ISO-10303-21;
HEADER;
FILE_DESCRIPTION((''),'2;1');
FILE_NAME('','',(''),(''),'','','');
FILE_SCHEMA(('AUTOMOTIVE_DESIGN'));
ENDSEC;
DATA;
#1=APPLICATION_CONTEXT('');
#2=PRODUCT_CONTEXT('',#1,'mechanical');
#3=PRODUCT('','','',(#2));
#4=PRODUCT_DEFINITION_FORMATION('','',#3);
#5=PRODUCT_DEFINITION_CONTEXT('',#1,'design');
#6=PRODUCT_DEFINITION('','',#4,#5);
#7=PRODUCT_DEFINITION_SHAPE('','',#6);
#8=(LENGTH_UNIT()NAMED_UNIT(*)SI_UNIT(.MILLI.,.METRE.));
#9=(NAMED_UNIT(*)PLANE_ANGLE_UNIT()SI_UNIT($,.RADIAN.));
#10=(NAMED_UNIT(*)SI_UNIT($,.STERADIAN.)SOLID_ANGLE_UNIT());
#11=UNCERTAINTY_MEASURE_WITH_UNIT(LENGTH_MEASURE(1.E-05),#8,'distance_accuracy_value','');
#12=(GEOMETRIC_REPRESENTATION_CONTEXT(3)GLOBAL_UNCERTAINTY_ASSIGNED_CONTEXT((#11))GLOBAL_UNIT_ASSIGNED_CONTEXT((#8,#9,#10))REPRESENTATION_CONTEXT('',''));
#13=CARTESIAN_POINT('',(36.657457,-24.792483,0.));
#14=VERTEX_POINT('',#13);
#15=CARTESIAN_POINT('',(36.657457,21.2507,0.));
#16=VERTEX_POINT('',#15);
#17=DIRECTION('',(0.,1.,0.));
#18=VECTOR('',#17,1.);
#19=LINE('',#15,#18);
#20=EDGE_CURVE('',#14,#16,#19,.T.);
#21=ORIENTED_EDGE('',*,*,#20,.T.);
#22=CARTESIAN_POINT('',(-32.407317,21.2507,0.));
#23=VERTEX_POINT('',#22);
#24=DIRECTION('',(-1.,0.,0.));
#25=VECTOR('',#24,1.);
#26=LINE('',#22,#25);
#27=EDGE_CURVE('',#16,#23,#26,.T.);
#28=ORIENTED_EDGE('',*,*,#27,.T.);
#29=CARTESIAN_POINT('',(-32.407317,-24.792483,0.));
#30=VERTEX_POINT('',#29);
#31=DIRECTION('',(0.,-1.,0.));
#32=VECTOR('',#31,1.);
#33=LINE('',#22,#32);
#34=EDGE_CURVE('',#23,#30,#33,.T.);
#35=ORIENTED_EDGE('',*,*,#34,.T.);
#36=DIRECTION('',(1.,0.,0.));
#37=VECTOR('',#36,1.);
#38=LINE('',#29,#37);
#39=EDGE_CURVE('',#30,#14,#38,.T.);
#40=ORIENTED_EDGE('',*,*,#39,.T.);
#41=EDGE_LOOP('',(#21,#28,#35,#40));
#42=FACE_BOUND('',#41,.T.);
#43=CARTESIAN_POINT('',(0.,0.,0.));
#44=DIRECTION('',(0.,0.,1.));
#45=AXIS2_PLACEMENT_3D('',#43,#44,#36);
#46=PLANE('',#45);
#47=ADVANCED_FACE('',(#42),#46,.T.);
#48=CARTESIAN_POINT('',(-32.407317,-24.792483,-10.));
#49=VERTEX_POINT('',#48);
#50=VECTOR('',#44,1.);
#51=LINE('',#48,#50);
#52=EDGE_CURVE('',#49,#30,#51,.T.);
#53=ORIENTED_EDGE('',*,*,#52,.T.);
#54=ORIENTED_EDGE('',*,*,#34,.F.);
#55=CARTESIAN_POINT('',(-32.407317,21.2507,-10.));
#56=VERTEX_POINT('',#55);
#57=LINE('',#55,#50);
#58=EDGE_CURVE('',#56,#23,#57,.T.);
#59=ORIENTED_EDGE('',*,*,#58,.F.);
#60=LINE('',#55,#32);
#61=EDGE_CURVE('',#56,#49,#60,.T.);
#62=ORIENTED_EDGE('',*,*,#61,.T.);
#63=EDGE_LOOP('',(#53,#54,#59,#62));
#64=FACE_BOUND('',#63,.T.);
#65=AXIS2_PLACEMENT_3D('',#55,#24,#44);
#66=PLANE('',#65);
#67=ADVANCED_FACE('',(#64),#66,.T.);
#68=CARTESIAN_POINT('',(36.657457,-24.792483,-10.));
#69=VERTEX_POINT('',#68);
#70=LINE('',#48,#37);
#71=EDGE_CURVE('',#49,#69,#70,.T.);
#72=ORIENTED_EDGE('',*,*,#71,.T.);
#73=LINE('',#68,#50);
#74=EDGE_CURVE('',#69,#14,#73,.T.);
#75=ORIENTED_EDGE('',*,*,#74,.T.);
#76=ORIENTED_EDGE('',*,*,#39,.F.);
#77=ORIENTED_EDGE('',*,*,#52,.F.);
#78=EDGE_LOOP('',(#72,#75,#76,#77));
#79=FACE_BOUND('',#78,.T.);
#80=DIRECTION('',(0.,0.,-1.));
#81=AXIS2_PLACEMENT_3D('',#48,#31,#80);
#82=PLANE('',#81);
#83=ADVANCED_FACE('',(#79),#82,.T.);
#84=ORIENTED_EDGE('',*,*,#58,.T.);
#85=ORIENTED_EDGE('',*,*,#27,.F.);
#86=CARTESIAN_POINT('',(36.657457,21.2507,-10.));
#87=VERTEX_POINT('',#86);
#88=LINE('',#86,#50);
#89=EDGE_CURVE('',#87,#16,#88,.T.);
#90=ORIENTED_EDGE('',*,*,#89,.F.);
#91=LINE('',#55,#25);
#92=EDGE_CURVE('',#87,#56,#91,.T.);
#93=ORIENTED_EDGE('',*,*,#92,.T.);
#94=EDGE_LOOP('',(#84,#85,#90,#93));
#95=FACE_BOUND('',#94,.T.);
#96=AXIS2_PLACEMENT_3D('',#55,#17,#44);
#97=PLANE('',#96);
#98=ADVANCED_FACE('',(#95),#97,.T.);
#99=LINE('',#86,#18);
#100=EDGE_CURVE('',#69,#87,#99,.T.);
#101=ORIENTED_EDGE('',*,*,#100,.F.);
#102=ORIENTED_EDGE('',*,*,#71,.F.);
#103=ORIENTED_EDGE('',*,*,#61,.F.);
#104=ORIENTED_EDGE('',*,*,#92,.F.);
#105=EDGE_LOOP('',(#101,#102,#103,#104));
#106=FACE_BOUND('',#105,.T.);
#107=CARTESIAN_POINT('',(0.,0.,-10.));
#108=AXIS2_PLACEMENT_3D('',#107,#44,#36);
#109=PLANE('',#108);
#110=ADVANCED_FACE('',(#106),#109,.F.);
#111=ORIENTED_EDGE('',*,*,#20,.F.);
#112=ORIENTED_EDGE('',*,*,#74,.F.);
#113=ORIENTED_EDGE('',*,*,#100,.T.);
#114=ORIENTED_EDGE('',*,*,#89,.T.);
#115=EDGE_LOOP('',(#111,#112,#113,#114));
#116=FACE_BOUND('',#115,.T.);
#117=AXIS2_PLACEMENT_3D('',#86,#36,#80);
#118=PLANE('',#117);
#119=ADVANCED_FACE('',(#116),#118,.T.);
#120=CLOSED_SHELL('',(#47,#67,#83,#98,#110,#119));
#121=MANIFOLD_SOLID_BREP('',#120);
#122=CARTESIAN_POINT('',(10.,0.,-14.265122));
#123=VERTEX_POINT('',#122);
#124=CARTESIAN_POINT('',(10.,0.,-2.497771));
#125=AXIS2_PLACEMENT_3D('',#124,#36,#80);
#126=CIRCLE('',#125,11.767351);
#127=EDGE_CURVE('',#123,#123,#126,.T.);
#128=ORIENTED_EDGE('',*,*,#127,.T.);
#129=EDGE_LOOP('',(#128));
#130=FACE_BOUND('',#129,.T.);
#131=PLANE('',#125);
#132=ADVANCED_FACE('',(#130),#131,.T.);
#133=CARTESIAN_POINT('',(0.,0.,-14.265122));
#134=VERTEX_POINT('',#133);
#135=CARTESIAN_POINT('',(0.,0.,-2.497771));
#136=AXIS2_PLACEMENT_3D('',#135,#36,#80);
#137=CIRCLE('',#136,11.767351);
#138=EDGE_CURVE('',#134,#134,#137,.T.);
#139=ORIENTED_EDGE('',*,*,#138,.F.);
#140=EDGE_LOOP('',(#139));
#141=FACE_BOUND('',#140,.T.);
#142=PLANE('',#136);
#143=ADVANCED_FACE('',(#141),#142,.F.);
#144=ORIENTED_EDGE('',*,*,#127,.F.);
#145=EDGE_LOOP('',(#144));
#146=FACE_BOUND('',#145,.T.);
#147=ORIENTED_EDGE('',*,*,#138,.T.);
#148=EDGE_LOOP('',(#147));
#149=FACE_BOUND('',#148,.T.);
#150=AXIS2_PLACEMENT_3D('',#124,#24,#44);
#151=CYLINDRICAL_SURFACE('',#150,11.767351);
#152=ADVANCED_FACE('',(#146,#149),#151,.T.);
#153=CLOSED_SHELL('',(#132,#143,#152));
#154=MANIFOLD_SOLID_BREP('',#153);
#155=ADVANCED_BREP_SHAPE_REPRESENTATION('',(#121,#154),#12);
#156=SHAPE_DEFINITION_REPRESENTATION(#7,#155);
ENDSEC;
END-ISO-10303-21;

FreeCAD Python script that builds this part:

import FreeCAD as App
import Part
import Sketcher

V = App.Vector
Q = App.Units.Quantity


def add_polygon(sketch, points):
    """Adds a closed chain of lines whose ends are joined by coincident constraints."""
    first, n = sketch.GeometryCount, len(points)
    for a, b in zip(points, points[1:] + points[:1]):
        sketch.addGeometry(Part.LineSegment(App.Vector(*a, 0), App.Vector(*b, 0)), False)
    for i in range(n):
        sketch.addConstraint(Sketcher.Constraint("Coincident", first + i, 2, first + (i + 1) % n, 1))

doc = App.newDocument("Part")
body = doc.addObject("PartDesign::Body", "Body")

# Sketch on XY plane
sketch1 = body.newObject("Sketcher::SketchObject", "Sketch")
sketch1.AttachmentSupport = (doc.getObject("XY_Plane"), [""])
sketch1.MapMode = "FlatFace"
add_polygon(sketch1, [(-32, 21), (-32, -25), (37, -25), (37, 21)])  # lines 0-3
sketch1.addConstraint(Sketcher.Constraint("Vertical", 0))
sketch1.addConstraint(Sketcher.Constraint("Horizontal", 1))
sketch1.addConstraint(Sketcher.Constraint("Vertical", 2))
sketch1.addConstraint(Sketcher.Constraint("Horizontal", 3))
sketch1.addConstraint(Sketcher.Constraint("DistanceY", -1, 1, 2, 2, Q("21.2507 mm")))
sketch1.addConstraint(Sketcher.Constraint("DistanceX", 1, 1, 1, 2, Q("69.064774 mm")))
sketch1.addConstraint(Sketcher.Constraint("DistanceY", 0, 2, 0, 1, Q("46.043183 mm")))
sketch1.addConstraint(Sketcher.Constraint("DistanceX", 0, 2, -1, 1, Q("32.407317 mm")))
pad1 = body.newObject("PartDesign::Pad", "Pad")
pad1.Profile = sketch1
pad1.Length = 10
pad1.Reversed = True
body2 = doc.addObject("PartDesign::Body", "Body001")

# Sketch on YZ plane
sketch2 = body2.newObject("Sketcher::SketchObject", "Sketch001")
sketch2.AttachmentSupport = (doc.getObject("YZ_Plane001"), [""])
sketch2.MapMode = "FlatFace"
sketch2.addGeometry(Part.Circle(V(0, 20, 0), V(0, 0, 1), 12), False)
sketch2.addConstraint(Sketcher.Constraint("PointOnObject", 0, 3, -2))
sketch2.addConstraint(Sketcher.Constraint("Diameter", 0, Q("23.534701 mm")))
sketch2.addConstraint(Sketcher.Constraint("DistanceY", -1, 1, 0, 3, Q("19.750029 mm")))
pad2 = body2.newObject("PartDesign::Pad", "Pad001")
pad2.Profile = sketch2
pad2.Length = 10
body3 = doc.addObject("PartDesign::Body", "Body002")
doc.recompute()

body2.Placement = App.Placement(V(0, 0, -22.2478), App.Rotation(V(0, 0, 1), 0))
boolean = body3.newObject("PartDesign::Boolean", "Boolean")
boolean.Type = "Fuse"
boolean.addObjects([body2])

doc.recompute()
